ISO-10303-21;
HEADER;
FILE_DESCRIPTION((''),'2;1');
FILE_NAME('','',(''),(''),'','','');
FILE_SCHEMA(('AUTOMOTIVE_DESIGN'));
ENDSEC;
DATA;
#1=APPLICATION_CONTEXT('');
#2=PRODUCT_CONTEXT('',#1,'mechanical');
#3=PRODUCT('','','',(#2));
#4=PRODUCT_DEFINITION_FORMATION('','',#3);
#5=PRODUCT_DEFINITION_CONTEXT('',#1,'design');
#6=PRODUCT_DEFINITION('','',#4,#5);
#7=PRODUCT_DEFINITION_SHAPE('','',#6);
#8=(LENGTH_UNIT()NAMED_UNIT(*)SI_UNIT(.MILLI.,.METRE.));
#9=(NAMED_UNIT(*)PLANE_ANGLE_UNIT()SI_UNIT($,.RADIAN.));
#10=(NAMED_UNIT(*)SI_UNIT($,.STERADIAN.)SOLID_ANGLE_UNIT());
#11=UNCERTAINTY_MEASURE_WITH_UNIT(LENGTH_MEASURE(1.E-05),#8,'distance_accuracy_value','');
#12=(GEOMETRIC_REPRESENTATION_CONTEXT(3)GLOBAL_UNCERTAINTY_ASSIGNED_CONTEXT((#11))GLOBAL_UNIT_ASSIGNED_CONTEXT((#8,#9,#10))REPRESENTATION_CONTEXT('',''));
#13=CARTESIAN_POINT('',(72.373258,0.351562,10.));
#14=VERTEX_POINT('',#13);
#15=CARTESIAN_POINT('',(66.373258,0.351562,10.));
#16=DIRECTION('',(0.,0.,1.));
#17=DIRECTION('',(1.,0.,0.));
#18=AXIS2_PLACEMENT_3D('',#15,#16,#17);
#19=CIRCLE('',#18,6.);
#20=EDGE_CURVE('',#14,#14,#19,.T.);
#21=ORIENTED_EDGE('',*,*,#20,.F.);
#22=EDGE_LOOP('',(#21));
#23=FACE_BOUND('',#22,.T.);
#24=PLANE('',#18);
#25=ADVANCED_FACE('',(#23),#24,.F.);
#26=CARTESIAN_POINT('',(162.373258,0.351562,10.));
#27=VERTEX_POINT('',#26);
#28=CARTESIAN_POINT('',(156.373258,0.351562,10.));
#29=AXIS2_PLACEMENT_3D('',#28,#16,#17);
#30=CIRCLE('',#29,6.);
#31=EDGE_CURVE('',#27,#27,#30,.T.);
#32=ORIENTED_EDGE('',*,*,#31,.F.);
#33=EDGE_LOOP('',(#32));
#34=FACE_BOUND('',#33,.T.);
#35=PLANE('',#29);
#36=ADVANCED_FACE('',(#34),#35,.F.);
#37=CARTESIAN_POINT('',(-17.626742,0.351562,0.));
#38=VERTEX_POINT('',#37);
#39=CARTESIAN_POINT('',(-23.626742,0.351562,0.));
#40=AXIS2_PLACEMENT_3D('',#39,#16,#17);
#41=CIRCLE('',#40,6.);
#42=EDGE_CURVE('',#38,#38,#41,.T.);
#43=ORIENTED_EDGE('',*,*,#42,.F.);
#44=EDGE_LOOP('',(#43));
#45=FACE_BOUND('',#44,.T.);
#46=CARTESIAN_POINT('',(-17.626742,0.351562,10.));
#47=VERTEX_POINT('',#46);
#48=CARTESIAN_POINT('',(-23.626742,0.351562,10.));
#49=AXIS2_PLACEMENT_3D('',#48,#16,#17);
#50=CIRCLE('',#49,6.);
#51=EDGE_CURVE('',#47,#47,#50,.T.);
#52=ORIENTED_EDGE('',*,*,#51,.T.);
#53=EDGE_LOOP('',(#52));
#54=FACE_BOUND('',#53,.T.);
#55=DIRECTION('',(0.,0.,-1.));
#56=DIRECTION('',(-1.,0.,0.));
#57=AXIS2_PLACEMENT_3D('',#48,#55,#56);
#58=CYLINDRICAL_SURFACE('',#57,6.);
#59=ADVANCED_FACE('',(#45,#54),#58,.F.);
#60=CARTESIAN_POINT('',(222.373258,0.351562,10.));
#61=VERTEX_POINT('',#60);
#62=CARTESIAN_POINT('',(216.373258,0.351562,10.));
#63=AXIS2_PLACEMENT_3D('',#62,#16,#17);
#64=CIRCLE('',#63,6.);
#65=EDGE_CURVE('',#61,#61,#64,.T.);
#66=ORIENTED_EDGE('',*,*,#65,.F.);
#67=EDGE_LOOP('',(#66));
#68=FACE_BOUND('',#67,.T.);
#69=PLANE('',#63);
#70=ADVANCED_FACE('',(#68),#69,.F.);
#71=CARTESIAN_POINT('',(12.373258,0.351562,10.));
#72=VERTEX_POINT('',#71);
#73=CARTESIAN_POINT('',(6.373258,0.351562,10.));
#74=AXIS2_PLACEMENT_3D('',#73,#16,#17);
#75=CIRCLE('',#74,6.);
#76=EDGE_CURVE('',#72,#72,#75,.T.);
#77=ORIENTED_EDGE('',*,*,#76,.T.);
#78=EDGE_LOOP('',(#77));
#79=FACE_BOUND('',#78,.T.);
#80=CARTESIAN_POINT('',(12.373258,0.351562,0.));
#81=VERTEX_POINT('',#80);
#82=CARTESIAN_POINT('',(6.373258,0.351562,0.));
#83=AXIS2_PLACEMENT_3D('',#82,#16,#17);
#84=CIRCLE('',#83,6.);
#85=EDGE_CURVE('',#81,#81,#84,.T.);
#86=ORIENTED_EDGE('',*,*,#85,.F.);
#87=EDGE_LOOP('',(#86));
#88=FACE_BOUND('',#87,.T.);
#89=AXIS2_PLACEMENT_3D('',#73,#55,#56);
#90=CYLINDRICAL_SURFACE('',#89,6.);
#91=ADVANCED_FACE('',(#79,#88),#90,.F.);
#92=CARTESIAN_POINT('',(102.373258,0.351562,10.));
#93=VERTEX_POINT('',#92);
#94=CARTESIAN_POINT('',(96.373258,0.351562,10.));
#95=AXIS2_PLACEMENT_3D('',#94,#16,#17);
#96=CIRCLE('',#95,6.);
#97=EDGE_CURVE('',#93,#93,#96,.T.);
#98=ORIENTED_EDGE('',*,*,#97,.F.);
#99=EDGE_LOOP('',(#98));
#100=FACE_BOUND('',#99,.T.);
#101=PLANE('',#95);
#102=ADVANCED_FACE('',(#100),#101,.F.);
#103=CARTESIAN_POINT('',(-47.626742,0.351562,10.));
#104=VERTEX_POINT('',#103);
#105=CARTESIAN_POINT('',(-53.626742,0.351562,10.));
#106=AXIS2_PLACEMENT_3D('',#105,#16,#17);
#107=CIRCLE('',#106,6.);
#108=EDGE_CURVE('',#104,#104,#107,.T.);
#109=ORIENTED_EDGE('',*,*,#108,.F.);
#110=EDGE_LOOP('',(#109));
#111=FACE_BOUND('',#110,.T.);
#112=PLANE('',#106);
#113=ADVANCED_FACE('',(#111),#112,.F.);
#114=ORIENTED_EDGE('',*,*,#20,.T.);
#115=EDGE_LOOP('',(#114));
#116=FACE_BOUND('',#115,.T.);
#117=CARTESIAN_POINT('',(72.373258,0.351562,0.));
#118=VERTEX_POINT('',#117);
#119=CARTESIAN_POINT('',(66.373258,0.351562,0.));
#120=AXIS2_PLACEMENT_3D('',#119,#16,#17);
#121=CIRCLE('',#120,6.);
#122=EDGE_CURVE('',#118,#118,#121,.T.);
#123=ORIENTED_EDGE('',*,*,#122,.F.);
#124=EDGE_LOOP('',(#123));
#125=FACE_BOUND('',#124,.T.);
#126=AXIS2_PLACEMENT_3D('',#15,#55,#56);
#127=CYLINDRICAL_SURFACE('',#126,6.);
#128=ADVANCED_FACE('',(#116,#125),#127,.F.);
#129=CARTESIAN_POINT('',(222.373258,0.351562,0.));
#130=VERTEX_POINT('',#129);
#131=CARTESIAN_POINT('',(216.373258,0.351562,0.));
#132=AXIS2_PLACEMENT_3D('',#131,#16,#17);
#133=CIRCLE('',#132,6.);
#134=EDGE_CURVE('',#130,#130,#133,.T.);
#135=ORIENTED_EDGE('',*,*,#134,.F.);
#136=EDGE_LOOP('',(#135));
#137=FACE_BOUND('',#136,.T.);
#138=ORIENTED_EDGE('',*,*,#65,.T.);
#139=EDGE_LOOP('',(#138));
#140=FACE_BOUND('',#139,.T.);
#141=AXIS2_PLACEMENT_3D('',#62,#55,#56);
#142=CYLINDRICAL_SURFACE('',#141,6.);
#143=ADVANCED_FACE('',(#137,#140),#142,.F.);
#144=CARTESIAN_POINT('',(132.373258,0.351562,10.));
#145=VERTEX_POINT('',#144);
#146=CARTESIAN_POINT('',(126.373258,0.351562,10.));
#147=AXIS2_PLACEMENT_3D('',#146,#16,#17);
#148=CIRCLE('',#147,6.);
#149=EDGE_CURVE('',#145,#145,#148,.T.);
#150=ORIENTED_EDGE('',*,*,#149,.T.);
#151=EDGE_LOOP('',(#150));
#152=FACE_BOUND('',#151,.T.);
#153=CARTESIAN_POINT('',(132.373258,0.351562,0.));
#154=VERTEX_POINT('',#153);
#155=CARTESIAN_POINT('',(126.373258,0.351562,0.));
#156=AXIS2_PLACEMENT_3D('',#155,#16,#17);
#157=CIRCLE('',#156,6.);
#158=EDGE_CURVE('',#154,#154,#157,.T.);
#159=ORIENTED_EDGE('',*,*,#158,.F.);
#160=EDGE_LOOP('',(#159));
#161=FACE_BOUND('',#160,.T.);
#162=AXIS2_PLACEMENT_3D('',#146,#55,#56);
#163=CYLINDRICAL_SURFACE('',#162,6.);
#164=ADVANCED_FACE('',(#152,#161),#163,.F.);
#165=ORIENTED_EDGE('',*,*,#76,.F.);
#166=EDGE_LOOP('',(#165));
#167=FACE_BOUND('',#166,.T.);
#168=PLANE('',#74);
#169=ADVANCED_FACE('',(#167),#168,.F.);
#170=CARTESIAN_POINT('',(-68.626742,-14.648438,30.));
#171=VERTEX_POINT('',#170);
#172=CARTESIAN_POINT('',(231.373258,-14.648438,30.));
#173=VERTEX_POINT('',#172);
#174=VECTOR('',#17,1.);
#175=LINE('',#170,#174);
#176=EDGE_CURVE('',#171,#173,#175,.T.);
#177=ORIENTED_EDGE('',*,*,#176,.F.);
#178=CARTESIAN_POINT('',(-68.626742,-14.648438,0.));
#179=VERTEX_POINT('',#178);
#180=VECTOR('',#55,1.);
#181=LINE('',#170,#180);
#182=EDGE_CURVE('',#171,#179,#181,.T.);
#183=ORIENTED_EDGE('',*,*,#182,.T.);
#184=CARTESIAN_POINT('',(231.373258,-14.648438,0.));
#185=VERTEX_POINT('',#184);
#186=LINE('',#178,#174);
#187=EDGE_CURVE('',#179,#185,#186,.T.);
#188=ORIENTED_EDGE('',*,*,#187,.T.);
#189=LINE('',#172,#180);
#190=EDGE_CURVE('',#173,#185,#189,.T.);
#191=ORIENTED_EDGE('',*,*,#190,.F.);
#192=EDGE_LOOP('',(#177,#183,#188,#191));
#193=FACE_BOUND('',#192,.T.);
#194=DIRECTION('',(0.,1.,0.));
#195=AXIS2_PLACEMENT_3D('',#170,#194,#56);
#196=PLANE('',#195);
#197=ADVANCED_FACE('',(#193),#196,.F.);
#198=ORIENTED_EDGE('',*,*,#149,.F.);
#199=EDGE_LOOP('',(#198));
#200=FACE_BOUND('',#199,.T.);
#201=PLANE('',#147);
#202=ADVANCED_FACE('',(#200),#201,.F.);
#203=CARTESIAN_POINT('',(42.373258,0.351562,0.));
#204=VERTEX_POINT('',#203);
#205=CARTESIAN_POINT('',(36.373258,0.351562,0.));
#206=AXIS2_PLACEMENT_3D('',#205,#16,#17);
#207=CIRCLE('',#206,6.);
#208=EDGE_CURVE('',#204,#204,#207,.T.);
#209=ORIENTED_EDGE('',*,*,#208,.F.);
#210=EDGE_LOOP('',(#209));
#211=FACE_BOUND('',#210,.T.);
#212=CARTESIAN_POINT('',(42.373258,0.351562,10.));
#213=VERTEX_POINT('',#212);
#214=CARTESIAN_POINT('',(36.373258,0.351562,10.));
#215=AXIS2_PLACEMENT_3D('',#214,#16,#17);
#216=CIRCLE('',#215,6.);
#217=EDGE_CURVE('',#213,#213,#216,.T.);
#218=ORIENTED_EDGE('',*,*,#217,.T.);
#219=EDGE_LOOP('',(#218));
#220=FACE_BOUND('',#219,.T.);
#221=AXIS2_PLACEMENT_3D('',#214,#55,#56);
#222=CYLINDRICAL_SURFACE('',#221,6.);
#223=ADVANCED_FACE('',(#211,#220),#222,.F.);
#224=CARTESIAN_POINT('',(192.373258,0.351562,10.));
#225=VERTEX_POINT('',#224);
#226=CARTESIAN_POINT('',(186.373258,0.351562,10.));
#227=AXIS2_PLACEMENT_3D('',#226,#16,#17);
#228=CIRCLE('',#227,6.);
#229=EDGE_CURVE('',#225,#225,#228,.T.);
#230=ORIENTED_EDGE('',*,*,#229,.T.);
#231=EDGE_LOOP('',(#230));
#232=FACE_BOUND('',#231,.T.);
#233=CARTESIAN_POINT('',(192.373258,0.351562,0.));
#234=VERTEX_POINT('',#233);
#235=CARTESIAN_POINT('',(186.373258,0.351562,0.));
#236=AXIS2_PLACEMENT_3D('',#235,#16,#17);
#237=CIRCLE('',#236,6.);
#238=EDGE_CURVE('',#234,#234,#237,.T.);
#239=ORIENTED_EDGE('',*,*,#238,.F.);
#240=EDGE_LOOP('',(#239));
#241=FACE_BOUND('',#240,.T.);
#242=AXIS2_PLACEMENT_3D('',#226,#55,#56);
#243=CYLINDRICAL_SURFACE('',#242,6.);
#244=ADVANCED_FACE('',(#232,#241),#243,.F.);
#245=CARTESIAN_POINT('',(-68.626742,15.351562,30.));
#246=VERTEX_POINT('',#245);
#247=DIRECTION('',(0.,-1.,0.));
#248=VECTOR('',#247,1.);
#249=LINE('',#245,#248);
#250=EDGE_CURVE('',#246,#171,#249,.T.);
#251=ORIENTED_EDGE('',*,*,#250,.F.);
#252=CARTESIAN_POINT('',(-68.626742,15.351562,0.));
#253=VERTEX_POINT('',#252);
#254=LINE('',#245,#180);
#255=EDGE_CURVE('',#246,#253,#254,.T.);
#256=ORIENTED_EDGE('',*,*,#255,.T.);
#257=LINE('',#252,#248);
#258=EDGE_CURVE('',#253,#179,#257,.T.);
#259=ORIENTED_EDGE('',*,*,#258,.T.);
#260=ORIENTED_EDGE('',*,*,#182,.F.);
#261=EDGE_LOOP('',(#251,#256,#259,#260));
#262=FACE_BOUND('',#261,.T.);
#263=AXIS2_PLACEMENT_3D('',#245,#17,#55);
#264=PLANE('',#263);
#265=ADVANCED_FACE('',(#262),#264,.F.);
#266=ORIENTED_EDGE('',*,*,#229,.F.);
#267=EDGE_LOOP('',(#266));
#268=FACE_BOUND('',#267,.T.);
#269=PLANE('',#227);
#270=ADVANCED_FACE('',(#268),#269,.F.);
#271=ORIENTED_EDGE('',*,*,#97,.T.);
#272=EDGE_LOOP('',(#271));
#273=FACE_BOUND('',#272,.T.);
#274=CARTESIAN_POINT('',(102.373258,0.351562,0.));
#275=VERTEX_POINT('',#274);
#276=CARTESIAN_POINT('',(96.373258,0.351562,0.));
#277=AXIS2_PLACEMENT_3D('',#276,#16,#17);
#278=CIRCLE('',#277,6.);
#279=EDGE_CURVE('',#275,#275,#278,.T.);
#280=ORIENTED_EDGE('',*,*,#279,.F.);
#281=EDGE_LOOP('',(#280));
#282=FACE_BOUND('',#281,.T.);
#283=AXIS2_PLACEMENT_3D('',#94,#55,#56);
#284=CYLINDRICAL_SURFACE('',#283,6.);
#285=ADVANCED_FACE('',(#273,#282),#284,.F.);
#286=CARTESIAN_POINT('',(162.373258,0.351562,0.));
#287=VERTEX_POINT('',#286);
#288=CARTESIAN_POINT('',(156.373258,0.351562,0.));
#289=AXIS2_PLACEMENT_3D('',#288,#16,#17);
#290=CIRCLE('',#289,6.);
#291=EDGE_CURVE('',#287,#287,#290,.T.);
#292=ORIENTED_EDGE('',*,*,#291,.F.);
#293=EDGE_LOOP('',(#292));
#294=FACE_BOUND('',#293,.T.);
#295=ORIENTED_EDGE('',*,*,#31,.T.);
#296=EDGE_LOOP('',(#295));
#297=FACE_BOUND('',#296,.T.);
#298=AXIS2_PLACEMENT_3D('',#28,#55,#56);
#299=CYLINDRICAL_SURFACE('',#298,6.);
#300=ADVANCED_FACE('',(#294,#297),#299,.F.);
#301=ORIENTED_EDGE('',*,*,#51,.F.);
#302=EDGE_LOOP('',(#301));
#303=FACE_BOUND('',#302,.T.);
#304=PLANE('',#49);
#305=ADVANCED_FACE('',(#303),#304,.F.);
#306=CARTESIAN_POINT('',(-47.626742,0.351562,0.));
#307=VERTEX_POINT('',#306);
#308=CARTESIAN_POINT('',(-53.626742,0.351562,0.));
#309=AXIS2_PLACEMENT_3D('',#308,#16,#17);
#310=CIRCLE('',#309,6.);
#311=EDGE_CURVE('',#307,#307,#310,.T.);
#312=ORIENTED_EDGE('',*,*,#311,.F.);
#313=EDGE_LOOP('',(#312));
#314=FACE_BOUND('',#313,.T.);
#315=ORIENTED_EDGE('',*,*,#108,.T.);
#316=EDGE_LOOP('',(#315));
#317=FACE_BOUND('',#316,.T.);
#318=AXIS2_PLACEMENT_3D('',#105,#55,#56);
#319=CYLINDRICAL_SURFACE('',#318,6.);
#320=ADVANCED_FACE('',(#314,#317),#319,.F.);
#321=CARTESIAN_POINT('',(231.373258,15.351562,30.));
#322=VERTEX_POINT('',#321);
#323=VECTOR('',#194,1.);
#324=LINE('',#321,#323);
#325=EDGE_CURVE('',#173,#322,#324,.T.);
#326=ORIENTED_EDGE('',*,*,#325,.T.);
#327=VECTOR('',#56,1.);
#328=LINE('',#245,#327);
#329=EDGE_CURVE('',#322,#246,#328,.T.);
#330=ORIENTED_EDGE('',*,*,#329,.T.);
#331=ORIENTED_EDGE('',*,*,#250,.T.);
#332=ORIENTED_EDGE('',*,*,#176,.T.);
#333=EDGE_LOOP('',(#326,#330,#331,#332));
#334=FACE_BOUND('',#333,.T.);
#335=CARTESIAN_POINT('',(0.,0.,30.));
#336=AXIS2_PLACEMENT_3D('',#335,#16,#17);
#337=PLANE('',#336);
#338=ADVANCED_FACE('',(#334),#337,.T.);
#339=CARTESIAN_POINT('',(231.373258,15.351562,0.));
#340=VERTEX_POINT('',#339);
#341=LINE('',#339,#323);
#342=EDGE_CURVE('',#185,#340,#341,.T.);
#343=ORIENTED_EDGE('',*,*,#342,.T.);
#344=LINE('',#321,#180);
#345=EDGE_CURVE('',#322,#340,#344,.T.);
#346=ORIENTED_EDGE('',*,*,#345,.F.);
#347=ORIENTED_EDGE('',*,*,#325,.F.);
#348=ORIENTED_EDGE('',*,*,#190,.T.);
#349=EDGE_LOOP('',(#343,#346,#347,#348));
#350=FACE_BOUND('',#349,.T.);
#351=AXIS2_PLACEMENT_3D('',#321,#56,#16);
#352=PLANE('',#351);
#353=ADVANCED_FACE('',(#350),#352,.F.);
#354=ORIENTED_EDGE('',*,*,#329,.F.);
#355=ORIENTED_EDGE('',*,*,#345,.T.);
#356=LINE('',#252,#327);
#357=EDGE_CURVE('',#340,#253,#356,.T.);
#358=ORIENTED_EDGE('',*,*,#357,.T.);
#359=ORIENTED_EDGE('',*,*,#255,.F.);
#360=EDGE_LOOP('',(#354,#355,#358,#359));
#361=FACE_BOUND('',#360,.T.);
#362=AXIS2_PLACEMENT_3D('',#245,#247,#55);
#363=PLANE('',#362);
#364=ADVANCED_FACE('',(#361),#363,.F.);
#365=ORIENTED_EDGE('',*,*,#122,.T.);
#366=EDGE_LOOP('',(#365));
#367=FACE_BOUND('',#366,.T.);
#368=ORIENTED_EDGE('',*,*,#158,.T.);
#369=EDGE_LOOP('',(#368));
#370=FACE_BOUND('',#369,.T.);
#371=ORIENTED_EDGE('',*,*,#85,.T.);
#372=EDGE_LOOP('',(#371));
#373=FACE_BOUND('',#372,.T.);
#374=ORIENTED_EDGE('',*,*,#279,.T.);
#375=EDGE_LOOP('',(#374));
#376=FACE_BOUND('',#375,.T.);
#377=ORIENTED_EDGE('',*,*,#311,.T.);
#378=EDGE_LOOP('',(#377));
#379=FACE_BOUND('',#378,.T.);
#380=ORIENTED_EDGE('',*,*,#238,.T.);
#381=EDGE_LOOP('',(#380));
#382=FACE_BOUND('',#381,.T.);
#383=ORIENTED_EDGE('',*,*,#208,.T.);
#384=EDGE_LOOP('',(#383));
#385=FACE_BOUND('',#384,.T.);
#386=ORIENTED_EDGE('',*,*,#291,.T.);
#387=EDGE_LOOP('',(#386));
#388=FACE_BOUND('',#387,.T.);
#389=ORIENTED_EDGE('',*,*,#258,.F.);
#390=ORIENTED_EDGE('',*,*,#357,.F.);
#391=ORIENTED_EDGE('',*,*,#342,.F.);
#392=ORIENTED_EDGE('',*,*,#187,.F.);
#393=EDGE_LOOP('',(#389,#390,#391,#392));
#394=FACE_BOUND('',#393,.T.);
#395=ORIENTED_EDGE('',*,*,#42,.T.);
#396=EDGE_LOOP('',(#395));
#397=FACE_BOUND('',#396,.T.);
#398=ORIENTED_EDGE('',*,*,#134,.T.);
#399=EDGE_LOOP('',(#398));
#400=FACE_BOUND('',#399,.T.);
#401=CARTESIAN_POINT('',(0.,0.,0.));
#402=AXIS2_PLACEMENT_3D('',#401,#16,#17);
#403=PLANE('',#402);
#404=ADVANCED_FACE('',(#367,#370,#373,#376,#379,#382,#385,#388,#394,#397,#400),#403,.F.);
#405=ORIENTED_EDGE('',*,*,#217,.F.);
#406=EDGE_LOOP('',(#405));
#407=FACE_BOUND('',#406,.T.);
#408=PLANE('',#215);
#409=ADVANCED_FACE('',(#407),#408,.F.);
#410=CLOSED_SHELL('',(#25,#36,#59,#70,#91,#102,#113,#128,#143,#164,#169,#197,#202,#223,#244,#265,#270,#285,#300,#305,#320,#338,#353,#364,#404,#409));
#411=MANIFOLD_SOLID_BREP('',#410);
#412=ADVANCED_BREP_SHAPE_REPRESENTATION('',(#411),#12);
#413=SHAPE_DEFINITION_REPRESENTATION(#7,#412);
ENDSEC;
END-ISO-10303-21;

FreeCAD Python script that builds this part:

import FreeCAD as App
import Part
import Sketcher

doc = App.newDocument("Part")
params = doc.addObject("Spreadsheet::Sheet", "Params")
for row, (alias, value) in enumerate([
    ("sketch1_width", "300 mm"),
    ("sketch1_height", "30 mm"),
    ("pad1_length", "30 mm"),
    ("sketch2_diameter", "12 mm"),
    ("pocket1_length", "10 mm"),
], start=1):
    params.set(f"A{row}", alias)
    params.set(f"B{row}", "=" + value)
    params.setAlias(f"B{row}", alias)

body = doc.addObject("PartDesign::Body", "Body")

# Sketch on XY plane
sketch1 = body.newObject("Sketcher::SketchObject", "Sketch")
sketch1.AttachmentSupport = (doc.getObject("XY_Plane"), [""])
sketch1.MapMode = "FlatFace"
sketch1.addGeometry([
    Part.LineSegment(App.Vector(-69, 15, 0), App.Vector(-69, -15, 0)),
    Part.LineSegment(App.Vector(-69, -15, 0), App.Vector(231, -15, 0)),
    Part.LineSegment(App.Vector(231, -15, 0), App.Vector(231, 15, 0)),
    Part.LineSegment(App.Vector(231, 15, 0), App.Vector(-69, 15, 0)),
], False)
sketch1.addConstraint([
    Sketcher.Constraint("Coincident", 0, 2, 1, 1),
    Sketcher.Constraint("Coincident", 1, 2, 2, 1),
    Sketcher.Constraint("Coincident", 2, 2, 3, 1),
    Sketcher.Constraint("Coincident", 3, 2, 0, 1),
    Sketcher.Constraint("Vertical", 0),
    Sketcher.Constraint("Horizontal", 1),
    Sketcher.Constraint("Vertical", 2),
    Sketcher.Constraint("Horizontal", 3),
    Sketcher.Constraint("DistanceX", 1, 1, 1, 2, 300.0),
    Sketcher.Constraint("DistanceY", 0, 2, 0, 1, 30.0),
    Sketcher.Constraint("DistanceX", 0, 2, -1, 1, 68.626742),
    Sketcher.Constraint("DistanceY", 0, 2, -1, 1, 14.648438),
])
sketch1.setExpression("Constraints[8]", "Params.sketch1_width")
sketch1.setExpression("Constraints[9]", "Params.sketch1_height")
pad1 = body.newObject("PartDesign::Pad", "Pad")
pad1.Profile = sketch1
pad1.setExpression("Length", "Params.pad1_length")

# Sketch on XY plane
sketch2 = body.newObject("Sketcher::SketchObject", "Sketch001")
sketch2.AttachmentSupport = (doc.getObject("XY_Plane"), [""])
sketch2.MapMode = "FlatFace"
sketch2.addGeometry([
    Part.Circle(App.Vector(-54, 0, 0), App.Vector(0, 0, 1), 6),  # 0
    Part.Circle(App.Vector(-24, 0, 0), App.Vector(0, 0, 1), 6),  # 1
    Part.Circle(App.Vector(6, 0, 0), App.Vector(0, 0, 1), 6),  # 2
    Part.Circle(App.Vector(36, 0, 0), App.Vector(0, 0, 1), 6),  # 3
    Part.Circle(App.Vector(66, 0, 0), App.Vector(0, 0, 1), 6),  # 4
    Part.Circle(App.Vector(96, 0, 0), App.Vector(0, 0, 1), 6),  # 5
    Part.Circle(App.Vector(126, 0, 0), App.Vector(0, 0, 1), 6),  # 6
    Part.Circle(App.Vector(156, 0, 0), App.Vector(0, 0, 1), 6),  # 7
    Part.Circle(App.Vector(186, 0, 0), App.Vector(0, 0, 1), 6),  # 8
    Part.Circle(App.Vector(216, 0, 0), App.Vector(0, 0, 1), 6),  # 9
], False)
sketch2.addConstraint([
    Sketcher.Constraint("Equal", 0, 1),
    Sketcher.Constraint("Equal", 1, 2),
    Sketcher.Constraint("Equal", 2, 3),
    Sketcher.Constraint("Equal", 3, 4),
    Sketcher.Constraint("Equal", 4, 5),
    Sketcher.Constraint("Equal", 5, 6),
    Sketcher.Constraint("Equal", 6, 7),
    Sketcher.Constraint("Equal", 7, 8),
    Sketcher.Constraint("Equal", 8, 9),
    Sketcher.Constraint("Horizontal", 0, 3, 1, 3),
    Sketcher.Constraint("Horizontal", 1, 3, 2, 3),
    Sketcher.Constraint("Horizontal", 2, 3, 3, 3),
    Sketcher.Constraint("Horizontal", 3, 3, 4, 3),
    Sketcher.Constraint("Horizontal", 4, 3, 5, 3),
    Sketcher.Constraint("Horizontal", 5, 3, 6, 3),
    Sketcher.Constraint("Horizontal", 6, 3, 7, 3),
    Sketcher.Constraint("Horizontal", 7, 3, 8, 3),
    Sketcher.Constraint("Horizontal", 8, 3, 9, 3),
    Sketcher.Constraint("Diameter", 0, 12.0),
    Sketcher.Constraint("DistanceX", 0, 3, 1, 3, 30.0),
    Sketcher.Constraint("DistanceX", 1, 3, 2, 3, 30.0),
    Sketcher.Constraint("DistanceX", 2, 3, 3, 3, 30.0),
    Sketcher.Constraint("DistanceX", 3, 3, 4, 3, 30.0),
    Sketcher.Constraint("DistanceX", 4, 3, 5, 3, 30.0),
    Sketcher.Constraint("DistanceX", 5, 3, 6, 3, 30.0),
    Sketcher.Constraint("DistanceX", 6, 3, 7, 3, 30.0),
    Sketcher.Constraint("DistanceX", 7, 3, 8, 3, 30.0),
    Sketcher.Constraint("DistanceX", 8, 3, 9, 3, 30.0),
    Sketcher.Constraint("DistanceX", 0, 3, -1, 1, 53.626742),
    Sketcher.Constraint("DistanceY", -1, 1, 0, 3, 0.351562),
])
sketch2.setExpression("Constraints[18]", "Params.sketch2_diameter")
pocket1 = body.newObject("PartDesign::Pocket", "Pocket")
pocket1.Profile = sketch2
pocket1.setExpression("Length", "Params.pocket1_length")
pocket1.Reversed = True

doc.recompute()
